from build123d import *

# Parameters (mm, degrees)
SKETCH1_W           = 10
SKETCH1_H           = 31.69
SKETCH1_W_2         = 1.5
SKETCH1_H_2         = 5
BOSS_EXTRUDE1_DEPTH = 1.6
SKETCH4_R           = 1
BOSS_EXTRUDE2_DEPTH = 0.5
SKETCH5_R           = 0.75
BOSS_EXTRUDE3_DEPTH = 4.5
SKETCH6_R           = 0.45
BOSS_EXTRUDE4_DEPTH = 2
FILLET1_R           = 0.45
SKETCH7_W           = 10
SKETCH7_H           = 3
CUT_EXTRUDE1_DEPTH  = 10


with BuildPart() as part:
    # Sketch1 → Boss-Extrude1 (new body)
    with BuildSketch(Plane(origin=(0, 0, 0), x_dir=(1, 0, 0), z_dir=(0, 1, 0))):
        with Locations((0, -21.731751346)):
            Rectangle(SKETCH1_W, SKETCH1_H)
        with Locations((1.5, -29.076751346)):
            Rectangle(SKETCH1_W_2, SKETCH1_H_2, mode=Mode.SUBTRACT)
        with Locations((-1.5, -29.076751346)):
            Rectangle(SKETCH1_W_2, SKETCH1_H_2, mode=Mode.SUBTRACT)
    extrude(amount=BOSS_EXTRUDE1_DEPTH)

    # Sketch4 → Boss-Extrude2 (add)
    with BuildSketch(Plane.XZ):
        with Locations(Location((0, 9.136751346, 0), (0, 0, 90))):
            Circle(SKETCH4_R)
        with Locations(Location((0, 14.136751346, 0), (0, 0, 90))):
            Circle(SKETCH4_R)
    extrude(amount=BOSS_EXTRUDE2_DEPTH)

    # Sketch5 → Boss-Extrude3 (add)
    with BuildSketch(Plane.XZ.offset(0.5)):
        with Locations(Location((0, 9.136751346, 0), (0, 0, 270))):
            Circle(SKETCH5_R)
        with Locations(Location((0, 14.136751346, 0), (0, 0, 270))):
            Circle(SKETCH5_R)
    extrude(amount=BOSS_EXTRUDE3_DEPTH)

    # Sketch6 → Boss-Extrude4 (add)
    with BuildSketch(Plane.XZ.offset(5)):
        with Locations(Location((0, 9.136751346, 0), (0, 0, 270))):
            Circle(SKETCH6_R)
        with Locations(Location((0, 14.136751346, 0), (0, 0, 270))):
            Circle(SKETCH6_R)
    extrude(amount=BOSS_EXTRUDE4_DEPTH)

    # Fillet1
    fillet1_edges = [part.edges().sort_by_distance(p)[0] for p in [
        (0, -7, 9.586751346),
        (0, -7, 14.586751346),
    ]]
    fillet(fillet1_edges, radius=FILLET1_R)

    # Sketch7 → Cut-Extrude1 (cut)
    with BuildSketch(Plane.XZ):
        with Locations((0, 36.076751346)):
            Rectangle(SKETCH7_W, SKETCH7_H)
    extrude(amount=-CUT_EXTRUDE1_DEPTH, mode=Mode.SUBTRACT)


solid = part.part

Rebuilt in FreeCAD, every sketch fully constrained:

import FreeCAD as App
import Part
import Sketcher
from FreeCAD import Vector


def edges_at(feature, points):
    """Names of the edges that pass closest to the given points."""
    edges = feature.Shape.Edges
    near = lambda p: min(range(len(edges)), key=lambda i: edges[i].distToShape(Part.Vertex(*p))[0])
    return sorted({f"Edge{near(p) + 1}" for p in points})

doc = App.newDocument("Part")
body = doc.addObject("PartDesign::Body", "Body")

# Sketch on XZ plane
sketch1 = doc.addObject("Sketcher::SketchObject", "Sketch")
body.addObject(sketch1)
sketch1.AttachmentSupport = (doc.XZ_Plane, [""])
sketch1.MapMode = "FlatFace"
sketch1.addGeometry([
    Part.LineSegment(Vector(-5, 5.9, 0), Vector(-5, 37.6, 0)),  # 0
    Part.LineSegment(Vector(-5, 37.6, 0), Vector(5, 37.6, 0)),  # 1
    Part.LineSegment(Vector(5, 37.6, 0), Vector(5, 5.9, 0)),  # 2
    Part.LineSegment(Vector(5, 5.9, 0), Vector(-5, 5.9, 0)),  # 3
    Part.LineSegment(Vector(-0.8, 31.6, 0), Vector(-2.2, 31.6, 0)),  # 4
    Part.LineSegment(Vector(-2.2, 31.6, 0), Vector(-2.2, 26.6, 0)),  # 5
    Part.LineSegment(Vector(-2.2, 26.6, 0), Vector(-0.8, 26.6, 0)),  # 6
    Part.LineSegment(Vector(-0.8, 26.6, 0), Vector(-0.8, 31.6, 0)),  # 7
    Part.LineSegment(Vector(2.2, 31.6, 0), Vector(0.8, 31.6, 0)),  # 8
    Part.LineSegment(Vector(0.8, 31.6, 0), Vector(0.8, 26.6, 0)),  # 9
    Part.LineSegment(Vector(0.8, 26.6, 0), Vector(2.2, 26.6, 0)),  # 10
    Part.LineSegment(Vector(2.2, 26.6, 0), Vector(2.2, 31.6, 0)),  # 11
], False)
sketch1.addConstraint([
    Sketcher.Constraint("Coincident", 0, 2, 1, 1),
    Sketcher.Constraint("Coincident", 1, 2, 2, 1),
    Sketcher.Constraint("Coincident", 2, 2, 3, 1),
    Sketcher.Constraint("Coincident", 3, 2, 0, 1),
    Sketcher.Constraint("Coincident", 4, 2, 5, 1),
    Sketcher.Constraint("Coincident", 5, 2, 6, 1),
    Sketcher.Constraint("Coincident", 6, 2, 7, 1),
    Sketcher.Constraint("Coincident", 7, 2, 4, 1),
    Sketcher.Constraint("Coincident", 8, 2, 9, 1),
    Sketcher.Constraint("Coincident", 9, 2, 10, 1),
    Sketcher.Constraint("Coincident", 10, 2, 11, 1),
    Sketcher.Constraint("Coincident", 11, 2, 8, 1),
    Sketcher.Constraint("Vertical", 0),
    Sketcher.Constraint("Horizontal", 1),
    Sketcher.Constraint("Vertical", 2),
    Sketcher.Constraint("Horizontal", 3),
    Sketcher.Constraint("Horizontal", 4),
    Sketcher.Constraint("Vertical", 5),
    Sketcher.Constraint("Horizontal", 6),
    Sketcher.Constraint("Vertical", 7),
    Sketcher.Constraint("Horizontal", 8),
    Sketcher.Constraint("Vertical", 9),
    Sketcher.Constraint("Horizontal", 10),
    Sketcher.Constraint("Vertical", 11),
    Sketcher.Constraint("Symmetric", 7, 2, 8, 2, -2),
    Sketcher.Constraint("Symmetric", 5, 2, 10, 2, -2),
    Sketcher.Constraint("DistanceX", 1, 1, 1, 2, 10.0),
    Sketcher.Constraint("DistanceY", 5, 2, 5, 1, 5.0),
    Sketcher.Constraint("DistanceX", 4, 2, 4, 1, 1.5),
    Sketcher.Constraint("DistanceX", 0, 2, -1, 1, 5.0),
    Sketcher.Constraint("DistanceY", 4, 2, 0, 2, 6.0),
    Sketcher.Constraint("DistanceX", 4, 2, 8, 2, 3.0),
    Sketcher.Constraint("DistanceY", 0, 1, 0, 2, 31.69),
    Sketcher.Constraint("DistanceY", -1, 1, 0, 2, 37.576751),
])
pad1 = doc.addObject("PartDesign::Pad", "Pad")
body.addObject(pad1)
pad1.Profile = sketch1
pad1.Length = 1.6
pad1.Reversed = True

# Sketch on XZ plane
sketch2 = doc.addObject("Sketcher::SketchObject", "Sketch001")
body.addObject(sketch2)
sketch2.AttachmentSupport = (doc.XZ_Plane, [""])
sketch2.MapMode = "FlatFace"
sketch2.addGeometry([
    Part.Circle(Vector(0, 9.1, 0), Vector(0, 0, 1), 1),
    Part.Circle(Vector(0, 14.1, 0), Vector(0, 0, 1), 1),
], False)
sketch2.addConstraint([
    Sketcher.Constraint("Equal", 0, 1),
    Sketcher.Constraint("PointOnObject", 0, 3, -2),
    Sketcher.Constraint("PointOnObject", 1, 3, -2),
    Sketcher.Constraint("Diameter", 0, 2.0),
    Sketcher.Constraint("DistanceY", 0, 3, 1, 3, 5.0),
    Sketcher.Constraint("DistanceY", -1, 1, 0, 3, 9.136751),
])
pad2 = doc.addObject("PartDesign::Pad", "Pad001")
body.addObject(pad2)
pad2.Profile = sketch2
pad2.Length = 0.5

# Sketch on XZ plane
sketch3 = doc.addObject("Sketcher::SketchObject", "Sketch002")
body.addObject(sketch3)
sketch3.AttachmentSupport = (doc.XZ_Plane, [""])
sketch3.MapMode = "FlatFace"
sketch3.AttachmentOffset = App.Placement(Vector(0, 0, 0.5), App.Rotation())
sketch3.addGeometry([
    Part.Circle(Vector(0, 9.1, 0), Vector(0, 0, 1), 0.8),
    Part.Circle(Vector(0, 14.1, 0), Vector(0, 0, 1), 0.8),
], False)
sketch3.addConstraint([
    Sketcher.Constraint("Equal", 0, 1),
    Sketcher.Constraint("PointOnObject", 0, 3, -2),
    Sketcher.Constraint("PointOnObject", 1, 3, -2),
    Sketcher.Constraint("Diameter", 0, 1.5),
    Sketcher.Constraint("DistanceY", 0, 3, 1, 3, 5.0),
    Sketcher.Constraint("DistanceY", -1, 1, 0, 3, 9.136751),
])
pad3 = doc.addObject("PartDesign::Pad", "Pad002")
body.addObject(pad3)
pad3.Profile = sketch3
pad3.Length = 4.5

# Sketch on XZ plane
sketch4 = doc.addObject("Sketcher::SketchObject", "Sketch003")
body.addObject(sketch4)
sketch4.AttachmentSupport = (doc.XZ_Plane, [""])
sketch4.MapMode = "FlatFace"
sketch4.AttachmentOffset = App.Placement(Vector(0, 0, 5), App.Rotation())
sketch4.addGeometry([
    Part.Circle(Vector(0, 9.14, 0), Vector(0, 0, 1), 0.45),
    Part.Circle(Vector(0, 14.14, 0), Vector(0, 0, 1), 0.45),
], False)
sketch4.addConstraint([
    Sketcher.Constraint("Equal", 0, 1),
    Sketcher.Constraint("PointOnObject", 0, 3, -2),
    Sketcher.Constraint("PointOnObject", 1, 3, -2),
    Sketcher.Constraint("Diameter", 0, 0.9),
    Sketcher.Constraint("DistanceY", 0, 3, 1, 3, 5.0),
    Sketcher.Constraint("DistanceY", -1, 1, 0, 3, 9.136751),
])
pad4 = doc.addObject("PartDesign::Pad", "Pad003")
body.addObject(pad4)
pad4.Profile = sketch4
pad4.Length = 2
doc.recompute()

fillet = doc.addObject("PartDesign::Fillet", "Fillet")
body.addObject(fillet)
fillet.Base = (pad4, edges_at(pad4, [(0, -7, 9.587), (0, -7, 14.587)]))
fillet.Radius = 0.45

# Sketch on XZ plane
sketch5 = doc.addObject("Sketcher::SketchObject", "Sketch004")
body.addObject(sketch5)
sketch5.AttachmentSupport = (doc.XZ_Plane, [""])
sketch5.MapMode = "FlatFace"
sketch5.addGeometry([
    Part.LineSegment(Vector(-5, 37.6, 0), Vector(-5, 34.6, 0)),
    Part.LineSegment(Vector(-5, 34.6, 0), Vector(5, 34.6, 0)),
    Part.LineSegment(Vector(5, 34.6, 0), Vector(5, 37.6, 0)),
    Part.LineSegment(Vector(5, 37.6, 0), Vector(-5, 37.6, 0)),
], False)
sketch5.addConstraint([
    Sketcher.Constraint("Coincident", 0, 2, 1, 1),
    Sketcher.Constraint("Coincident", 1, 2, 2, 1),
    Sketcher.Constraint("Coincident", 2, 2, 3, 1),
    Sketcher.Constraint("Coincident", 3, 2, 0, 1),
    Sketcher.Constraint("Vertical", 0),
    Sketcher.Constraint("Horizontal", 1),
    Sketcher.Constraint("Vertical", 2),
    Sketcher.Constraint("Horizontal", 3),
    Sketcher.Constraint("DistanceX", 1, 1, 1, 2, 10.0),
    Sketcher.Constraint("DistanceY", 0, 2, 0, 1, 3.0),
    Sketcher.Constraint("DistanceX", 0, 2, -1, 1, 5.0),
    Sketcher.Constraint("DistanceY", -1, 1, 0, 2, 34.576751),
])
pocket1 = doc.addObject("PartDesign::Pocket", "Pocket")
body.addObject(pocket1)
pocket1.Profile = sketch5
pocket1.Length = 10

doc.recompute()
